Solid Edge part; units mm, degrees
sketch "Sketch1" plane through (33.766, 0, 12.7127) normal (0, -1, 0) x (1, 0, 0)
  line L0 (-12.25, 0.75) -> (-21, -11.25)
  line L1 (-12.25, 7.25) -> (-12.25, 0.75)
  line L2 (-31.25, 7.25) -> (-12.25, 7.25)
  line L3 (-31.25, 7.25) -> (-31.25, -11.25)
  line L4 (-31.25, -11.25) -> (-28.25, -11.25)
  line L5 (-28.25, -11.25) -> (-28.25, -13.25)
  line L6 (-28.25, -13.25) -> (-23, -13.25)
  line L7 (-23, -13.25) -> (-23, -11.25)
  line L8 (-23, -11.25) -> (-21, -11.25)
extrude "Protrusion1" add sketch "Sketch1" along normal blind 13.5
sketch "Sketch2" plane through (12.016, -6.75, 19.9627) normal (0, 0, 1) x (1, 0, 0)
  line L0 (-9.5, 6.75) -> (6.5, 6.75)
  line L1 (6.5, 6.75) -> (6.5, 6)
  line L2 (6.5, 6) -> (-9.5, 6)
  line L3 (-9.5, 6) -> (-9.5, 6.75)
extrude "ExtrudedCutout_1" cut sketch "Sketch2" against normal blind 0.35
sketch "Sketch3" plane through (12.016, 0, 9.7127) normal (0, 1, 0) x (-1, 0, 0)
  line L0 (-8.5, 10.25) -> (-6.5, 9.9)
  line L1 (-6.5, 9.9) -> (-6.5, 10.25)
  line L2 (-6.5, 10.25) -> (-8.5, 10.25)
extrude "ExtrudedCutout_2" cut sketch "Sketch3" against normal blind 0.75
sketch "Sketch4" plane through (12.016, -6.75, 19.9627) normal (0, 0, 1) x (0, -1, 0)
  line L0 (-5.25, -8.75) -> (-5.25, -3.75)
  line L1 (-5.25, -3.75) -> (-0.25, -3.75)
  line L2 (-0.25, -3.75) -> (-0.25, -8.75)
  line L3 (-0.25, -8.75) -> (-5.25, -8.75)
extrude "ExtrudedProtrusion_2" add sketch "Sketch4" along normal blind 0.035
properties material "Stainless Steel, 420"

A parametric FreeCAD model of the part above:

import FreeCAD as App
import Part
import Sketcher

V = App.Vector
Q = App.Units.Quantity

doc = App.newDocument("Part")
body = doc.addObject("PartDesign::Body", "Body")

sketch1 = doc.addObject("Sketcher::SketchObject", "Sketch")
body.addObject(sketch1)
sketch1.AttachmentSupport = (doc.XZ_Plane, [""])
sketch1.MapMode = "FlatFace"
sketch1.addGeometry(Part.LineSegment(V(12.8, 1.5, 0), V(21.5, 13.5, 0)), False)
sketch1.addGeometry(Part.LineSegment(V(21.5, 13.5, 0), V(21.5, 20, 0)), False)
sketch1.addGeometry(Part.LineSegment(V(21.5, 20, 0), V(2.5, 20, 0)), False)
sketch1.addGeometry(Part.LineSegment(V(2.5, 20, 0), V(2.5, 1.5, 0)), False)
sketch1.addGeometry(Part.LineSegment(V(2.5, 1.5, 0), V(5.5, 1.5, 0)), False)
sketch1.addGeometry(Part.LineSegment(V(5.5, 1.5, 0), V(5.5, -0.5, 0)), False)
sketch1.addGeometry(Part.LineSegment(V(5.5, -0.5, 0), V(10.8, -0.5, 0)), False)
sketch1.addGeometry(Part.LineSegment(V(10.8, -0.5, 0), V(10.8, 1.5, 0)), False)
sketch1.addGeometry(Part.LineSegment(V(10.8, 1.5, 0), V(12.8, 1.5, 0)), False)
sketch1.addConstraint(Sketcher.Constraint("Coincident", 0, 2, 1, 1))
sketch1.addConstraint(Sketcher.Constraint("Coincident", 1, 2, 2, 1))
sketch1.addConstraint(Sketcher.Constraint("Coincident", 2, 2, 3, 1))
sketch1.addConstraint(Sketcher.Constraint("Coincident", 3, 2, 4, 1))
sketch1.addConstraint(Sketcher.Constraint("Coincident", 4, 2, 5, 1))
sketch1.addConstraint(Sketcher.Constraint("Coincident", 5, 2, 6, 1))
sketch1.addConstraint(Sketcher.Constraint("Coincident", 6, 2, 7, 1))
sketch1.addConstraint(Sketcher.Constraint("Coincident", 7, 2, 8, 1))
sketch1.addConstraint(Sketcher.Constraint("Coincident", 8, 2, 0, 1))
sketch1.addConstraint(Sketcher.Constraint("Vertical", 1))
sketch1.addConstraint(Sketcher.Constraint("Horizontal", 2))
sketch1.addConstraint(Sketcher.Constraint("Vertical", 3))
sketch1.addConstraint(Sketcher.Constraint("Horizontal", 4))
sketch1.addConstraint(Sketcher.Constraint("Vertical", 5))
sketch1.addConstraint(Sketcher.Constraint("Horizontal", 6))
sketch1.addConstraint(Sketcher.Constraint("Vertical", 7))
sketch1.addConstraint(Sketcher.Constraint("Horizontal", 8))
sketch1.addConstraint(Sketcher.Constraint("Horizontal", 4, 2, 7, 2))
sketch1.addConstraint(Sketcher.Constraint("Equal", 8, 5))
sketch1.addConstraint(Sketcher.Constraint("DistanceX", 2, 2, 2, 1, Q("19 mm")))
sketch1.addConstraint(Sketcher.Constraint("DistanceX", 4, 1, 4, 2, Q("3 mm")))
sketch1.addConstraint(Sketcher.Constraint("DistanceX", 8, 1, 8, 2, Q("2 mm")))
sketch1.addConstraint(Sketcher.Constraint("DistanceY", 1, 1, 1, 2, Q("6.5 mm")))
sketch1.addConstraint(Sketcher.Constraint("DistanceY", 3, 2, 3, 1, Q("18.5 mm")))
sketch1.addConstraint(Sketcher.Constraint("DistanceX", 6, 1, 6, 2, Q("5.25 mm")))
sketch1.addConstraint(Sketcher.Constraint("DistanceX", -1, 1, 0, 2, Q("21.516 mm")))
sketch1.addConstraint(Sketcher.Constraint("DistanceY", -1, 1, 0, 2, Q("13.4627 mm")))
pad1 = doc.addObject("PartDesign::Pad", "Pad")
body.addObject(pad1)
pad1.Profile = sketch1
pad1.Length = 13.5

sketch2 = doc.addObject("Sketcher::SketchObject", "Sketch001")
body.addObject(sketch2)
sketch2.AttachmentSupport = (doc.XY_Plane, [""])
sketch2.MapMode = "FlatFace"
sketch2.AttachmentOffset = App.Placement(V(0, 0, 19.9627), App.Rotation())
sketch2.addGeometry(Part.LineSegment(V(18.5, 0, 0), V(2.5, 0, 0)), False)
sketch2.addGeometry(Part.LineSegment(V(2.5, 0, 0), V(2.5, -0.8, 0)), False)
sketch2.addGeometry(Part.LineSegment(V(2.5, -0.8, 0), V(18.5, -0.8, 0)), False)
sketch2.addGeometry(Part.LineSegment(V(18.5, -0.8, 0), V(18.5, 0, 0)), False)
sketch2.addConstraint(Sketcher.Constraint("Coincident", 0, 2, 1, 1))
sketch2.addConstraint(Sketcher.Constraint("Coincident", 1, 2, 2, 1))
sketch2.addConstraint(Sketcher.Constraint("Coincident", 2, 2, 3, 1))
sketch2.addConstraint(Sketcher.Constraint("Coincident", 3, 2, 0, 1))
sketch2.addConstraint(Sketcher.Constraint("Horizontal", 0))
sketch2.addConstraint(Sketcher.Constraint("Vertical", 1))
sketch2.addConstraint(Sketcher.Constraint("Horizontal", 2))
sketch2.addConstraint(Sketcher.Constraint("Vertical", 3))
sketch2.addConstraint(Sketcher.Constraint("PointOnObject", 0, 2, -1))
sketch2.addConstraint(Sketcher.Constraint("DistanceX", 0, 2, 0, 1, Q("16 mm")))
sketch2.addConstraint(Sketcher.Constraint("DistanceY", 1, 2, 1, 1, Q("0.75 mm")))
sketch2.addConstraint(Sketcher.Constraint("DistanceX", -1, 1, 0, 2, Q("2.516 mm")))
pocket1 = doc.addObject("PartDesign::Pocket", "Pocket")
body.addObject(pocket1)
pocket1.Profile = sketch2
pocket1.Length = 0.35

sketch3 = doc.addObject("Sketcher::SketchObject", "Sketch002")
body.addObject(sketch3)
sketch3.AttachmentSupport = (doc.XZ_Plane, [""])
sketch3.MapMode = "FlatFace"
sketch3.addGeometry(Part.LineSegment(V(18.52, 19.96, 0), V(20.52, 19.96, 0)), False)
sketch3.addGeometry(Part.LineSegment(V(20.52, 19.96, 0), V(18.52, 19.61, 0)), False)
sketch3.addGeometry(Part.LineSegment(V(18.52, 19.61, 0), V(18.52, 19.96, 0)), False)
sketch3.addConstraint(Sketcher.Constraint("Coincident", 0, 2, 1, 1))
sketch3.addConstraint(Sketcher.Constraint("Coincident", 1, 2, 2, 1))
sketch3.addConstraint(Sketcher.Constraint("Coincident", 2, 2, 0, 1))
sketch3.addConstraint(Sketcher.Constraint("Horizontal", 0))
sketch3.addConstraint(Sketcher.Constraint("Vertical", 2))
sketch3.addConstraint(Sketcher.Constraint("DistanceX", 0, 1, 0, 2, Q("2 mm")))
sketch3.addConstraint(Sketcher.Constraint("DistanceY", 2, 1, 2, 2, Q("0.35 mm")))
sketch3.addConstraint(Sketcher.Constraint("DistanceX", -1, 1, 0, 2, Q("20.516 mm")))
sketch3.addConstraint(Sketcher.Constraint("DistanceY", -1, 1, 0, 2, Q("19.9627 mm")))
pocket2 = doc.addObject("PartDesign::Pocket", "Pocket001")
body.addObject(pocket2)
pocket2.Profile = sketch3
pocket2.Length = 0.75
pocket2.Reversed = True

sketch4 = doc.addObject("Sketcher::SketchObject", "Sketch003")
body.addObject(sketch4)
sketch4.AttachmentSupport = (doc.XY_Plane, [""])
sketch4.MapMode = "FlatFace"
sketch4.AttachmentOffset = App.Placement(V(0, 0, 19.9627), App.Rotation())
sketch4.addGeometry(Part.LineSegment(V(8, -2, 0), V(3, -2, 0)), False)
sketch4.addGeometry(Part.LineSegment(V(3, -2, 0), V(3, -6, 0)), False)
sketch4.addGeometry(Part.LineSegment(V(3, -6, 0), V(8, -6, 0)), False)
sketch4.addGeometry(Part.LineSegment(V(8, -6, 0), V(8, -2, 0)), False)
sketch4.addConstraint(Sketcher.Constraint("Coincident", 0, 2, 1, 1))
sketch4.addConstraint(Sketcher.Constraint("Coincident", 1, 2, 2, 1))
sketch4.addConstraint(Sketcher.Constraint("Coincident", 2, 2, 3, 1))
sketch4.addConstraint(Sketcher.Constraint("Coincident", 3, 2, 0, 1))
sketch4.addConstraint(Sketcher.Constraint("Horizontal", 0))
sketch4.addConstraint(Sketcher.Constraint("Vertical", 1))
sketch4.addConstraint(Sketcher.Constraint("Horizontal", 2))
sketch4.addConstraint(Sketcher.Constraint("Vertical", 3))
sketch4.addConstraint(Sketcher.Constraint("Equal", 2, 1))
sketch4.addConstraint(Sketcher.Constraint("DistanceX", 0, 2, 0, 1, Q("5 mm")))
sketch4.addConstraint(Sketcher.Constraint("DistanceY", 0, 2, -1, 1, Q("1.5 mm")))
sketch4.addConstraint(Sketcher.Constraint("DistanceX", -1, 1, 0, 2, Q("3.266 mm")))
pad2 = doc.addObject("PartDesign::Pad", "Pad001")
body.addObject(pad2)
pad2.Profile = sketch4
pad2.Length = 0.035

doc.recompute()
